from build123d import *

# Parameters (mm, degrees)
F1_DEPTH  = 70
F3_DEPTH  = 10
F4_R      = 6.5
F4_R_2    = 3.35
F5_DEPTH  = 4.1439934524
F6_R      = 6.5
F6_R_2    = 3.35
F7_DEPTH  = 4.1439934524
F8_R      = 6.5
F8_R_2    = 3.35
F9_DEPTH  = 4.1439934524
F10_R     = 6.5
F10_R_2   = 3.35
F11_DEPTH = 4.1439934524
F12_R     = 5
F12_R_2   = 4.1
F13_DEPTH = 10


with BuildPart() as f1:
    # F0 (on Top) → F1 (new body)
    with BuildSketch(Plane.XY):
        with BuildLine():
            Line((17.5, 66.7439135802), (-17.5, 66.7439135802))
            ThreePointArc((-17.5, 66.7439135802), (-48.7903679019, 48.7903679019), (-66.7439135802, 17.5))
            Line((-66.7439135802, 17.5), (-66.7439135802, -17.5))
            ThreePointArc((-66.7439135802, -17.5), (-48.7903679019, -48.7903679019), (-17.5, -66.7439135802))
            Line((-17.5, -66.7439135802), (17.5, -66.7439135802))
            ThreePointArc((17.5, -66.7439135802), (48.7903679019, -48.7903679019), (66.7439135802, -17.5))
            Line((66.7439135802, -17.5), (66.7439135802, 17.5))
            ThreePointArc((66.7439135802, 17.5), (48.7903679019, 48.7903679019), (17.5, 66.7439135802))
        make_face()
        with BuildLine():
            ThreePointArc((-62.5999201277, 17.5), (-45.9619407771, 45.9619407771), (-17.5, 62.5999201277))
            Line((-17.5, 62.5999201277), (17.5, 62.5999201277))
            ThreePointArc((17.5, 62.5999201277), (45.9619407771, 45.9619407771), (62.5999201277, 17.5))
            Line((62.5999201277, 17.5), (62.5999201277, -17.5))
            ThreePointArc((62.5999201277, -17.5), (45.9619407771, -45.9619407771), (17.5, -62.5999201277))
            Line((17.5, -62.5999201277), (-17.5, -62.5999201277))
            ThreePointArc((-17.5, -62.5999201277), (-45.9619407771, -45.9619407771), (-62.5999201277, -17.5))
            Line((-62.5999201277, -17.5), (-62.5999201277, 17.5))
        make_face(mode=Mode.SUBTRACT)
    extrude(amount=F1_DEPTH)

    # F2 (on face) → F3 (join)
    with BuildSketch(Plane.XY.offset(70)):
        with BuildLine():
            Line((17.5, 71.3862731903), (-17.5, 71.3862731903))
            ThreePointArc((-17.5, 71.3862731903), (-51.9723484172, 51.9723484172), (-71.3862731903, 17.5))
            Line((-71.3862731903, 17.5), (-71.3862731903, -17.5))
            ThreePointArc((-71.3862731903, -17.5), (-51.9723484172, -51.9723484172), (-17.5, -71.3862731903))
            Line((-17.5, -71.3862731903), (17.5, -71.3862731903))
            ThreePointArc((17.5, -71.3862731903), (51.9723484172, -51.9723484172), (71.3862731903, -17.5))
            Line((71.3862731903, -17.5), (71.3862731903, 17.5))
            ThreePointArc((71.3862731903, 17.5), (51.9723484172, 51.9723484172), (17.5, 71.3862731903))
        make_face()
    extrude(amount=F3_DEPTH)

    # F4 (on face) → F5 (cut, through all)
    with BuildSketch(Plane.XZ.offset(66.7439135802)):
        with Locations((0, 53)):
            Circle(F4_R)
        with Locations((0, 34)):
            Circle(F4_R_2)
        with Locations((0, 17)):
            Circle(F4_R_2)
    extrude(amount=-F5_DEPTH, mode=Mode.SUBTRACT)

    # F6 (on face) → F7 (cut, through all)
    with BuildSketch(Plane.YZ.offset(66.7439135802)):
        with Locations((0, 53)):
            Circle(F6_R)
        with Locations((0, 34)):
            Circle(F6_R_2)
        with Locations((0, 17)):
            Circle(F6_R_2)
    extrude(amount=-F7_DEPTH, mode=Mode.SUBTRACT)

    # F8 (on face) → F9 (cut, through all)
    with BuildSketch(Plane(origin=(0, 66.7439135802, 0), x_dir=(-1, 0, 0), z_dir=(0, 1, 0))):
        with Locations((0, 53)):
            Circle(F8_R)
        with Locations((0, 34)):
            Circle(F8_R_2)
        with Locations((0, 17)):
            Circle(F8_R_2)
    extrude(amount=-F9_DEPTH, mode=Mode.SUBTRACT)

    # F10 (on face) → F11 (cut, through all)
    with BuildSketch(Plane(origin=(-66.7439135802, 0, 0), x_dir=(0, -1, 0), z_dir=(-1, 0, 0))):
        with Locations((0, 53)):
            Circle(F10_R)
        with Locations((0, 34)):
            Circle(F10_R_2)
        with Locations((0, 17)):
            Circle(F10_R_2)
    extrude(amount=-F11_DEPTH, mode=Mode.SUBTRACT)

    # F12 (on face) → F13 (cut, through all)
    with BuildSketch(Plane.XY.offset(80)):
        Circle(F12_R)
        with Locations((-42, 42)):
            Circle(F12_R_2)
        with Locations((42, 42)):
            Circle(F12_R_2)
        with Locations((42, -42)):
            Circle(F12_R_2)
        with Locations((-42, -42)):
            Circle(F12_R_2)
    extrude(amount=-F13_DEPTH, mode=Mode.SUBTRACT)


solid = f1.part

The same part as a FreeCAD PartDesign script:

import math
import FreeCAD as App
import Part
import Sketcher
Q = App.Units.Quantity

doc = App.newDocument("Part")
body = doc.addObject("PartDesign::Body", "Body")

# Sketch on XY plane
sketch1 = body.newObject("Sketcher::SketchObject", "Sketch")
sketch1.AttachmentSupport = (doc.getObject("XY_Plane"), [""])
sketch1.MapMode = "FlatFace"
sketch1.addGeometry([
    Part.LineSegment(App.Vector(18, 67, 0), App.Vector(-18, 67, 0)),  # 0
    Part.ArcOfCircle(Part.Circle(App.Vector(0, 0, 0), App.Vector(0, 0, 1), 69), math.radians(105), math.radians(165)),  # 1
    Part.LineSegment(App.Vector(-67, 18, 0), App.Vector(-67, -18, 0)),  # 2
    Part.ArcOfCircle(Part.Circle(App.Vector(0, 0, 0), App.Vector(0, 0, 1), 69), math.radians(-165), math.radians(-105)),  # 3
    Part.LineSegment(App.Vector(-18, -67, 0), App.Vector(18, -67, 0)),  # 4
    Part.ArcOfCircle(Part.Circle(App.Vector(0, 0, 0), App.Vector(0, 0, 1), 69), math.radians(-75), math.radians(-15)),  # 5
    Part.LineSegment(App.Vector(67, -18, 0), App.Vector(67, 18, 0)),  # 6
    Part.ArcOfCircle(Part.Circle(App.Vector(0, 0, 0), App.Vector(0, 0, 1), 69), math.radians(15), math.radians(75)),  # 7
    Part.LineSegment(App.Vector(-63, -18, 0), App.Vector(-63, 18, 0)),  # 8
    Part.ArcOfCircle(Part.Circle(App.Vector(0, 0, 0), App.Vector(0, 0, 1), 65), math.radians(106), math.radians(164)),  # 9
    Part.LineSegment(App.Vector(-18, 63, 0), App.Vector(18, 63, 0)),  # 10
    Part.ArcOfCircle(Part.Circle(App.Vector(0, 0, 0), App.Vector(0, 0, 1), 65), math.radians(16), math.radians(74)),  # 11
    Part.LineSegment(App.Vector(63, 18, 0), App.Vector(63, -18, 0)),  # 12
    Part.ArcOfCircle(Part.Circle(App.Vector(0, 0, 0), App.Vector(0, 0, 1), 65), math.radians(-74), math.radians(-16)),  # 13
    Part.LineSegment(App.Vector(18, -63, 0), App.Vector(-18, -63, 0)),  # 14
    Part.ArcOfCircle(Part.Circle(App.Vector(0, 0, 0), App.Vector(0, 0, 1), 65), math.radians(-164), math.radians(-106)),  # 15
], False)
sketch1.addConstraint([
    Sketcher.Constraint("Coincident", 0, 2, 1, 1),
    Sketcher.Constraint("Coincident", 1, 2, 2, 1),
    Sketcher.Constraint("Coincident", 2, 2, 3, 1),
    Sketcher.Constraint("Coincident", 3, 2, 4, 1),
    Sketcher.Constraint("Coincident", 4, 2, 5, 1),
    Sketcher.Constraint("Coincident", 5, 2, 6, 1),
    Sketcher.Constraint("Coincident", 6, 2, 7, 1),
    Sketcher.Constraint("Coincident", 7, 2, 0, 1),
    Sketcher.Constraint("Coincident", 8, 2, 9, 2),
    Sketcher.Constraint("Coincident", 9, 1, 10, 1),
    Sketcher.Constraint("Coincident", 10, 2, 11, 2),
    Sketcher.Constraint("Coincident", 11, 1, 12, 1),
    Sketcher.Constraint("Coincident", 12, 2, 13, 2),
    Sketcher.Constraint("Coincident", 13, 1, 14, 1),
    Sketcher.Constraint("Coincident", 14, 2, 15, 2),
    Sketcher.Constraint("Coincident", 15, 1, 8, 1),
    Sketcher.Constraint("Horizontal", 0),
    Sketcher.Constraint("Vertical", 2),
    Sketcher.Constraint("Horizontal", 4),
    Sketcher.Constraint("Vertical", 6),
    Sketcher.Constraint("Vertical", 8),
    Sketcher.Constraint("Horizontal", 10),
    Sketcher.Constraint("Vertical", 12),
    Sketcher.Constraint("Horizontal", 14),
    Sketcher.Constraint("Coincident", 1, 3, -1, 1),
    Sketcher.Constraint("Coincident", 3, 3, -1, 1),
    Sketcher.Constraint("Coincident", 5, 3, -1, 1),
    Sketcher.Constraint("Coincident", 7, 3, -1, 1),
    Sketcher.Constraint("Coincident", 9, 3, -1, 1),
    Sketcher.Constraint("Coincident", 11, 3, -1, 1),
    Sketcher.Constraint("Coincident", 13, 3, -1, 1),
    Sketcher.Constraint("Coincident", 15, 3, -1, 1),
    Sketcher.Constraint("Equal", 1, 3),
    Sketcher.Constraint("Equal", 3, 5),
    Sketcher.Constraint("Equal", 5, 7),
    Sketcher.Constraint("Equal", 9, 11),
    Sketcher.Constraint("Equal", 11, 13),
    Sketcher.Constraint("Equal", 13, 15),
    Sketcher.Constraint("Horizontal", 2, 2, 5, 2),
    Sketcher.Constraint("Horizontal", 6, 2, 8, 2),
    Sketcher.Constraint("Horizontal", 8, 2, 11, 1),
    Sketcher.Constraint("Vertical", 0, 2, 3, 2),
    Sketcher.Constraint("Vertical", 3, 2, 9, 1),
    Sketcher.Constraint("Vertical", 10, 2, 13, 1),
    Sketcher.Constraint("Equal", 14, 2),
    Sketcher.Constraint("Radius", 1, Q("69 mm")),
    Sketcher.Constraint("Radius", 9, Q("65 mm")),
    Sketcher.Constraint("DistanceX", 0, 2, 0, 1, Q("35 mm")),
])
pad1 = body.newObject("PartDesign::Pad", "Pad")
pad1.Profile = sketch1
pad1.Length = 70

# Sketch on XY plane
sketch2 = body.newObject("Sketcher::SketchObject", "Sketch001")
sketch2.AttachmentSupport = (doc.getObject("XY_Plane"), [""])
sketch2.MapMode = "FlatFace"
sketch2.AttachmentOffset = App.Placement(App.Vector(0, 0, 70), App.Rotation())
sketch2.addGeometry([
    Part.LineSegment(App.Vector(18, 71, 0), App.Vector(-18, 71, 0)),  # 0
    Part.ArcOfCircle(Part.Circle(App.Vector(0, 0, 0), App.Vector(0, 0, 1), 74), math.radians(104), math.radians(166)),  # 1
    Part.LineSegment(App.Vector(-71, 18, 0), App.Vector(-71, -18, 0)),  # 2
    Part.ArcOfCircle(Part.Circle(App.Vector(0, 0, 0), App.Vector(0, 0, 1), 74), math.radians(-166), math.radians(-104)),  # 3
    Part.LineSegment(App.Vector(-18, -71, 0), App.Vector(18, -71, 0)),  # 4
    Part.ArcOfCircle(Part.Circle(App.Vector(0, 0, 0), App.Vector(0, 0, 1), 74), math.radians(-76), math.radians(-14)),  # 5
    Part.LineSegment(App.Vector(71, -18, 0), App.Vector(71, 18, 0)),  # 6
    Part.ArcOfCircle(Part.Circle(App.Vector(0, 0, 0), App.Vector(0, 0, 1), 74), math.radians(14), math.radians(76)),  # 7
], False)
sketch2.addConstraint([
    Sketcher.Constraint("Coincident", 0, 2, 1, 1),
    Sketcher.Constraint("Coincident", 1, 2, 2, 1),
    Sketcher.Constraint("Coincident", 2, 2, 3, 1),
    Sketcher.Constraint("Coincident", 3, 2, 4, 1),
    Sketcher.Constraint("Coincident", 4, 2, 5, 1),
    Sketcher.Constraint("Coincident", 5, 2, 6, 1),
    Sketcher.Constraint("Coincident", 6, 2, 7, 1),
    Sketcher.Constraint("Coincident", 7, 2, 0, 1),
    Sketcher.Constraint("Horizontal", 0),
    Sketcher.Constraint("Vertical", 2),
    Sketcher.Constraint("Horizontal", 4),
    Sketcher.Constraint("Vertical", 6),
    Sketcher.Constraint("Coincident", 1, 3, -1, 1),
    Sketcher.Constraint("Coincident", 3, 3, -1, 1),
    Sketcher.Constraint("Coincident", 5, 3, -1, 1),
    Sketcher.Constraint("Coincident", 7, 3, -1, 1),
    Sketcher.Constraint("Equal", 1, 3),
    Sketcher.Constraint("Equal", 3, 5),
    Sketcher.Constraint("Equal", 5, 7),
    Sketcher.Constraint("Horizontal", 2, 2, 5, 2),
    Sketcher.Constraint("Vertical", 0, 2, 3, 2),
    Sketcher.Constraint("Equal", 4, 2),
    Sketcher.Constraint("Radius", 1, Q("73.5 mm")),
    Sketcher.Constraint("DistanceX", 0, 2, 0, 1, Q("35 mm")),
])
pad2 = body.newObject("PartDesign::Pad", "Pad001")
pad2.Profile = sketch2
pad2.Length = 10

# Sketch on XZ plane
sketch3 = body.newObject("Sketcher::SketchObject", "Sketch002")
sketch3.AttachmentSupport = (doc.getObject("XZ_Plane"), [""])
sketch3.MapMode = "FlatFace"
sketch3.AttachmentOffset = App.Placement(App.Vector(0, 0, 66.743914), App.Rotation())
sketch3.addGeometry([
    Part.Circle(App.Vector(0, 53, 0), App.Vector(0, 0, 1), 6.5),
    Part.Circle(App.Vector(0, 34, 0), App.Vector(0, 0, 1), 3.4),
    Part.Circle(App.Vector(0, 17, 0), App.Vector(0, 0, 1), 3.4),
], False)
sketch3.addConstraint([
    Sketcher.Constraint("Equal", 1, 2),
    Sketcher.Constraint("PointOnObject", 0, 3, -2),
    Sketcher.Constraint("PointOnObject", 1, 3, -2),
    Sketcher.Constraint("PointOnObject", 2, 3, -2),
    Sketcher.Constraint("Diameter", 0, Q("13 mm")),
    Sketcher.Constraint("Diameter", 1, Q("6.7 mm")),
    Sketcher.Constraint("DistanceY", -1, 1, 0, 3, Q("53 mm")),
    Sketcher.Constraint("DistanceY", -1, 1, 1, 3, Q("34 mm")),
    Sketcher.Constraint("DistanceY", -1, 1, 2, 3, Q("17 mm")),
])
pocket1 = body.newObject("PartDesign::Pocket", "Pocket")
pocket1.Profile = sketch3
pocket1.Length = 4.143993

# Sketch on YZ plane
sketch4 = body.newObject("Sketcher::SketchObject", "Sketch003")
sketch4.AttachmentSupport = (doc.getObject("YZ_Plane"), [""])
sketch4.MapMode = "FlatFace"
sketch4.AttachmentOffset = App.Placement(App.Vector(0, 0, 66.743914), App.Rotation())
sketch4.addGeometry([
    Part.Circle(App.Vector(0, 53, 0), App.Vector(0, 0, 1), 6.5),
    Part.Circle(App.Vector(0, 34, 0), App.Vector(0, 0, 1), 3.4),
    Part.Circle(App.Vector(0, 17, 0), App.Vector(0, 0, 1), 3.4),
], False)
sketch4.addConstraint([
    Sketcher.Constraint("Equal", 1, 2),
    Sketcher.Constraint("PointOnObject", 0, 3, -2),
    Sketcher.Constraint("PointOnObject", 1, 3, -2),
    Sketcher.Constraint("PointOnObject", 2, 3, -2),
    Sketcher.Constraint("Diameter", 0, Q("13 mm")),
    Sketcher.Constraint("Diameter", 1, Q("6.7 mm")),
    Sketcher.Constraint("DistanceY", -1, 1, 0, 3, Q("53 mm")),
    Sketcher.Constraint("DistanceY", -1, 1, 1, 3, Q("34 mm")),
    Sketcher.Constraint("DistanceY", -1, 1, 2, 3, Q("17 mm")),
])
pocket2 = body.newObject("PartDesign::Pocket", "Pocket001")
pocket2.Profile = sketch4
pocket2.Length = 4.143993

# Sketch on XZ plane
sketch5 = body.newObject("Sketcher::SketchObject", "Sketch004")
sketch5.AttachmentSupport = (doc.getObject("XZ_Plane"), [""])
sketch5.MapMode = "FlatFace"
sketch5.AttachmentOffset = App.Placement(App.Vector(0, 0, -66.743914), App.Rotation())
sketch5.addGeometry([
    Part.Circle(App.Vector(0, 53, 0), App.Vector(0, 0, 1), 6.5),
    Part.Circle(App.Vector(0, 34, 0), App.Vector(0, 0, 1), 3.4),
    Part.Circle(App.Vector(0, 17, 0), App.Vector(0, 0, 1), 3.4),
], False)
sketch5.addConstraint([
    Sketcher.Constraint("Equal", 1, 2),
    Sketcher.Constraint("PointOnObject", 0, 3, -2),
    Sketcher.Constraint("PointOnObject", 1, 3, -2),
    Sketcher.Constraint("PointOnObject", 2, 3, -2),
    Sketcher.Constraint("Diameter", 0, Q("13 mm")),
    Sketcher.Constraint("Diameter", 1, Q("6.7 mm")),
    Sketcher.Constraint("DistanceY", -1, 1, 0, 3, Q("53 mm")),
    Sketcher.Constraint("DistanceY", -1, 1, 1, 3, Q("34 mm")),
    Sketcher.Constraint("DistanceY", -1, 1, 2, 3, Q("17 mm")),
])
pocket3 = body.newObject("PartDesign::Pocket", "Pocket002")
pocket3.Profile = sketch5
pocket3.Type = "ThroughAll"
pocket3.Reversed = True

# Sketch on YZ plane
sketch6 = body.newObject("Sketcher::SketchObject", "Sketch005")
sketch6.AttachmentSupport = (doc.getObject("YZ_Plane"), [""])
sketch6.MapMode = "FlatFace"
sketch6.AttachmentOffset = App.Placement(App.Vector(0, 0, -66.743914), App.Rotation())
sketch6.addGeometry([
    Part.Circle(App.Vector(0, 53, 0), App.Vector(0, 0, 1), 6.5),
    Part.Circle(App.Vector(0, 34, 0), App.Vector(0, 0, 1), 3.4),
    Part.Circle(App.Vector(0, 17, 0), App.Vector(0, 0, 1), 3.4),
], False)
sketch6.addConstraint([
    Sketcher.Constraint("Equal", 1, 2),
    Sketcher.Constraint("PointOnObject", 0, 3, -2),
    Sketcher.Constraint("PointOnObject", 1, 3, -2),
    Sketcher.Constraint("PointOnObject", 2, 3, -2),
    Sketcher.Constraint("Diameter", 0, Q("13 mm")),
    Sketcher.Constraint("Diameter", 1, Q("6.7 mm")),
    Sketcher.Constraint("DistanceY", -1, 1, 0, 3, Q("53 mm")),
    Sketcher.Constraint("DistanceY", -1, 1, 1, 3, Q("34 mm")),
    Sketcher.Constraint("DistanceY", -1, 1, 2, 3, Q("17 mm")),
])
pocket4 = body.newObject("PartDesign::Pocket", "Pocket003")
pocket4.Profile = sketch6
pocket4.Type = "ThroughAll"
pocket4.Reversed = True

# Sketch on XY plane
sketch7 = body.newObject("Sketcher::SketchObject", "Sketch006")
sketch7.AttachmentSupport = (doc.getObject("XY_Plane"), [""])
sketch7.MapMode = "FlatFace"
sketch7.AttachmentOffset = App.Placement(App.Vector(0, 0, 80), App.Rotation())
sketch7.addGeometry([
    Part.Circle(App.Vector(0, 0, 0), App.Vector(0, 0, 1), 5),  # 0
    Part.Circle(App.Vector(-42, 42, 0), App.Vector(0, 0, 1), 4.1),  # 1
    Part.Circle(App.Vector(42, 42, 0), App.Vector(0, 0, 1), 4.1),  # 2
    Part.Circle(App.Vector(42, -42, 0), App.Vector(0, 0, 1), 4.1),  # 3
    Part.Circle(App.Vector(-42, -42, 0), App.Vector(0, 0, 1), 4.1),  # 4
], False)
sketch7.addConstraint([
    Sketcher.Constraint("Coincident", 0, 3, -1, 1),
    Sketcher.Constraint("Equal", 1, 2),
    Sketcher.Constraint("Equal", 2, 3),
    Sketcher.Constraint("Equal", 3, 4),
    Sketcher.Constraint("Symmetric", 1, 3, 3, 3, -1, 1),
    Sketcher.Constraint("Symmetric", 2, 3, 4, 3, -1, 1),
    Sketcher.Constraint("Symmetric", 1, 3, 2, 3, -2),
    Sketcher.Constraint("Diameter", 0, Q("10 mm")),
    Sketcher.Constraint("Diameter", 1, Q("8.2 mm")),
    Sketcher.Constraint("DistanceX", 1, 3, -1, 1, Q("42 mm")),
    Sketcher.Constraint("DistanceY", -1, 1, 1, 3, Q("42 mm")),
])
pocket5 = body.newObject("PartDesign::Pocket", "Pocket004")
pocket5.Profile = sketch7
pocket5.Type = "ThroughAll"

doc.recompute()
